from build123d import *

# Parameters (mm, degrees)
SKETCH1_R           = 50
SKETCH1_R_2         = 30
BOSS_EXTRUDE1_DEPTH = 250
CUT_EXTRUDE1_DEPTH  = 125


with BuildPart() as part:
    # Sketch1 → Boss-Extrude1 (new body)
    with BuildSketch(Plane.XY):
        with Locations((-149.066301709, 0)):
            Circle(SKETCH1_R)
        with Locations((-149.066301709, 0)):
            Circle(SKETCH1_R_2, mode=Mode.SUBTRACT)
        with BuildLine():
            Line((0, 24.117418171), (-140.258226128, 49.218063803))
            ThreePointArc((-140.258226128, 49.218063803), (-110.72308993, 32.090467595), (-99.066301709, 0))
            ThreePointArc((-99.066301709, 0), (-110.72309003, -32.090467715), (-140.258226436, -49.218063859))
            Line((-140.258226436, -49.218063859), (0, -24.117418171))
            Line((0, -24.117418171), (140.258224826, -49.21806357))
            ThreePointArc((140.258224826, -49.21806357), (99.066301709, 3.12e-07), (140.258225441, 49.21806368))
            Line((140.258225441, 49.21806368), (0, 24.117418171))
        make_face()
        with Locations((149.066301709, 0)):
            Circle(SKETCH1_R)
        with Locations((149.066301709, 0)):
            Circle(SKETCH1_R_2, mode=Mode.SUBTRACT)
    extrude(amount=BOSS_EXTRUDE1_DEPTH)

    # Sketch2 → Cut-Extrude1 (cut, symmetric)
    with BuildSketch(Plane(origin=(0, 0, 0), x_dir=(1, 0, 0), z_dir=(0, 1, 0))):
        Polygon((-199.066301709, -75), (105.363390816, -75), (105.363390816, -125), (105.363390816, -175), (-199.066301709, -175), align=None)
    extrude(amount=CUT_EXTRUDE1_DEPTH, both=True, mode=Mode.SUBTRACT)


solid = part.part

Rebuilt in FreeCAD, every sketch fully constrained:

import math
import FreeCAD as App
import Part
import Sketcher
from FreeCAD import Vector
Q = App.Units.Quantity

doc = App.newDocument("Part")
body = doc.addObject("PartDesign::Body", "Body")

# Sketch on XY plane
sketch1 = body.newObject("Sketcher::SketchObject", "Sketch")
sketch1.AttachmentSupport = (doc.getObject("XY_Plane"), [""])
sketch1.MapMode = "FlatFace"
sketch1.addGeometry([
    Part.ArcOfCircle(Part.Circle(Vector(-149.066302, 0, 0), Vector(0, 0, 1), 50), math.radians(79.853742), math.radians(280.146258)),  # 0
    Part.LineSegment(Vector(-140.258226, -49.218064, 0), Vector(0, -24.117418, 0)),  # 1
    Part.LineSegment(Vector(0, -24.117418, 0), Vector(140.258225, -49.218064, 0)),  # 2
    Part.ArcOfCircle(Part.Circle(Vector(149.066302, 0, 0), Vector(0, 0, 1), 50), math.radians(-100.14626), math.radians(100.146259)),  # 3
    Part.LineSegment(Vector(140.258225, 49.218064, 0), Vector(0, 24.117418, 0)),  # 4
    Part.LineSegment(Vector(0, 24.117418, 0), Vector(-140.258226, 49.218064, 0)),  # 5
    Part.Circle(Vector(-149.066302, 0, 0), Vector(0, 0, 1), 30),  # 6
    Part.Circle(Vector(149.066302, 0, 0), Vector(0, 0, 1), 30),  # 7
], False)
sketch1.addConstraint([
    Sketcher.Constraint("Tangent", 0, 2, 1, 1),
    Sketcher.Constraint("Coincident", 1, 2, 2, 1),
    Sketcher.Constraint("Tangent", 2, 2, 3, 1),
    Sketcher.Constraint("Tangent", 3, 2, 4, 1),
    Sketcher.Constraint("Coincident", 4, 2, 5, 1),
    Sketcher.Constraint("Tangent", 5, 2, 0, 1),
    Sketcher.Constraint("Coincident", 6, 3, 0, 3),
    Sketcher.Constraint("Coincident", 7, 3, 3, 3),
    Sketcher.Constraint("Equal", 0, 3),
    Sketcher.Constraint("Equal", 6, 7),
    Sketcher.Constraint("Symmetric", 0, 3, 3, 3, -1, 1),
    Sketcher.Constraint("Symmetric", 1, 2, 4, 2, -1, 1),
    Sketcher.Constraint("Symmetric", 0, 2, 2, 2, -2),
    Sketcher.Constraint("Diameter", 6, Q("60 mm")),
    Sketcher.Constraint("Radius", 0, Q("50 mm")),
    Sketcher.Constraint("DistanceX", 0, 3, -1, 1, Q("149.066302 mm")),
    Sketcher.Constraint("DistanceY", 1, 2, -1, 1, Q("24.117418 mm")),
])
pad1 = body.newObject("PartDesign::Pad", "Pad")
pad1.Profile = sketch1
pad1.Length = 250

# Sketch on XZ plane
sketch2 = body.newObject("Sketcher::SketchObject", "Sketch001")
sketch2.AttachmentSupport = (doc.getObject("XZ_Plane"), [""])
sketch2.MapMode = "FlatFace"
sketch2.addGeometry([
    Part.LineSegment(Vector(105.363391, 75, 0), Vector(-199.066302, 75, 0)),
    Part.LineSegment(Vector(-199.066302, 75, 0), Vector(-199.066302, 175, 0)),
    Part.LineSegment(Vector(-199.066302, 175, 0), Vector(105.363391, 175, 0)),
    Part.LineSegment(Vector(105.363391, 175, 0), Vector(105.363391, 75, 0)),
], False)
sketch2.addConstraint([
    Sketcher.Constraint("Coincident", 0, 2, 1, 1),
    Sketcher.Constraint("Coincident", 1, 2, 2, 1),
    Sketcher.Constraint("Coincident", 2, 2, 3, 1),
    Sketcher.Constraint("Coincident", 3, 2, 0, 1),
    Sketcher.Constraint("Horizontal", 0),
    Sketcher.Constraint("Vertical", 1),
    Sketcher.Constraint("Horizontal", 2),
    Sketcher.Constraint("Vertical", 3),
    Sketcher.Constraint("DistanceY", 1, 1, 1, 2, Q("100 mm")),
    Sketcher.Constraint("DistanceY", -1, 1, 0, 2, Q("75 mm")),
    Sketcher.Constraint("DistanceX", 0, 2, -1, 1, Q("199.066302 mm")),
    Sketcher.Constraint("DistanceX", 0, 2, 0, 1, Q("304.429693 mm")),
])
pocket1 = body.newObject("PartDesign::Pocket", "Pocket")
pocket1.Profile = sketch2
pocket1.Length = 250
pocket1.Midplane = True

doc.recompute()
